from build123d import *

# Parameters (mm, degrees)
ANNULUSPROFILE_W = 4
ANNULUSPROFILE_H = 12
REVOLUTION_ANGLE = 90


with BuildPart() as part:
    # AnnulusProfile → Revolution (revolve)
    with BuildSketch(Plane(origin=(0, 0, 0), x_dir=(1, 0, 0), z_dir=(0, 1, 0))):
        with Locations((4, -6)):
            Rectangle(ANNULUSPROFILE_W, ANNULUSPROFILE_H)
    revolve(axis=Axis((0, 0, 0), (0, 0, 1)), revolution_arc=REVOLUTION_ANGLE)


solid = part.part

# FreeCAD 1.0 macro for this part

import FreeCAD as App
import Part
import Sketcher

V = App.Vector
Q = App.Units.Quantity

doc = App.newDocument("Part")
params = doc.addObject("Spreadsheet::Sheet", "Params")
for row, (alias, value) in enumerate([
    ("sketch1_width", "4 mm"),
    ("sketch1_height", "12 mm"),
    ("revolution_angle", "90 deg"),
], start=1):
    params.set(f"A{row}", alias)
    params.set(f"B{row}", "=" + value)
    params.setAlias(f"B{row}", alias)

body = doc.addObject("PartDesign::Body", "Body")

# Sketch on XZ plane
sketch1 = doc.addObject("Sketcher::SketchObject", "Sketch")
body.addObject(sketch1)
sketch1.AttachmentSupport = (doc.XZ_Plane, [""])
sketch1.MapMode = "FlatFace"
sketch1.addGeometry([
    Part.LineSegment(V(2, 0, 0), V(2, 12, 0)),
    Part.LineSegment(V(2, 12, 0), V(6, 12, 0)),
    Part.LineSegment(V(6, 12, 0), V(6, 0, 0)),
    Part.LineSegment(V(6, 0, 0), V(2, 0, 0)),
], False)
sketch1.addConstraint([
    Sketcher.Constraint("Coincident", 0, 2, 1, 1),
    Sketcher.Constraint("Coincident", 1, 2, 2, 1),
    Sketcher.Constraint("Coincident", 2, 2, 3, 1),
    Sketcher.Constraint("Coincident", 3, 2, 0, 1),
    Sketcher.Constraint("Vertical", 0),
    Sketcher.Constraint("Horizontal", 1),
    Sketcher.Constraint("Vertical", 2),
    Sketcher.Constraint("Horizontal", 3),
    Sketcher.Constraint("PointOnObject", 2, 2, -1),
    Sketcher.Constraint("DistanceX", 1, 1, 1, 2, Q("4 mm")),
    Sketcher.Constraint("DistanceY", 0, 1, 0, 2, Q("12 mm")),
    Sketcher.Constraint("DistanceX", -1, 1, 0, 2, Q("2 mm")),
])
sketch1.setExpression("Constraints[9]", "Params.sketch1_width")
sketch1.setExpression("Constraints[10]", "Params.sketch1_height")
revolution = doc.addObject("PartDesign::Revolution", "Revolution")
body.addObject(revolution)
revolution.Profile = sketch1
revolution.ReferenceAxis = (sketch1, ["V_Axis"])
revolution.setExpression("Angle", "Params.revolution_angle")

doc.recompute()
